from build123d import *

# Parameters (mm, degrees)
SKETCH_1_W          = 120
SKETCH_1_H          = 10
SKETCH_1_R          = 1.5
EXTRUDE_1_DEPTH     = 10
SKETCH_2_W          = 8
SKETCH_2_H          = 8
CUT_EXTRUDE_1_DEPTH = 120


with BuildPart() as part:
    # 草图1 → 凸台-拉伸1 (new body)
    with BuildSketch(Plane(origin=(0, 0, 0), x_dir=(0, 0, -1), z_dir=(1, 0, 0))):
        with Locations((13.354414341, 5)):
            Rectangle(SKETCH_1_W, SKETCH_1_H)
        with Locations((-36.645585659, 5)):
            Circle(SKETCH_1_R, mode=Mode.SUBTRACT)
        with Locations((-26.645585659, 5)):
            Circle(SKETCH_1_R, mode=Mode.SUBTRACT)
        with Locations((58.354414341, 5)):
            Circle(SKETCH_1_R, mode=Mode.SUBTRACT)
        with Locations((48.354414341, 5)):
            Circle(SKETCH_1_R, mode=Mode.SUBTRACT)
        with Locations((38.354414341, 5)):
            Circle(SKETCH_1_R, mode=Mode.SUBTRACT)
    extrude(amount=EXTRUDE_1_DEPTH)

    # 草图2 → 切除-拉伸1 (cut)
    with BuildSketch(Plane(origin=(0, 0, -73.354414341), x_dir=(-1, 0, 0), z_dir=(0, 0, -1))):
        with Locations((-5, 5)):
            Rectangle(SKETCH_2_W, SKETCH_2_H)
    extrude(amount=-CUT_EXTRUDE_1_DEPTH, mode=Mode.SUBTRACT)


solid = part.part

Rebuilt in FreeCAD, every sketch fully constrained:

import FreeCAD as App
import Part
import Sketcher

V = App.Vector
Q = App.Units.Quantity

doc = App.newDocument("Part")
body = doc.addObject("PartDesign::Body", "Body")

# Sketch on YZ plane
sketch1 = doc.addObject("Sketcher::SketchObject", "Sketch")
body.addObject(sketch1)
sketch1.AttachmentSupport = (doc.YZ_Plane, [""])
sketch1.MapMode = "FlatFace"
sketch1.addGeometry([
    Part.LineSegment(V(10, 46.645586, 0), V(0, 46.645586, 0)),  # 0
    Part.LineSegment(V(0, 46.645586, 0), V(0, -73.354414, 0)),  # 1
    Part.LineSegment(V(0, -73.354414, 0), V(10, -73.354414, 0)),  # 2
    Part.LineSegment(V(10, -73.354414, 0), V(10, 46.645586, 0)),  # 3
    Part.Circle(V(5, 36.645586, 0), V(0, 0, 1), 1.5),  # 4
    Part.Circle(V(5, 26.645586, 0), V(0, 0, 1), 1.5),  # 5
    Part.Circle(V(5, -38.354414, 0), V(0, 0, 1), 1.5),  # 6
    Part.Circle(V(5, -48.354414, 0), V(0, 0, 1), 1.5),  # 7
    Part.Circle(V(5, -58.354414, 0), V(0, 0, 1), 1.5),  # 8
], False)
sketch1.addConstraint([
    Sketcher.Constraint("Coincident", 0, 2, 1, 1),
    Sketcher.Constraint("Coincident", 1, 2, 2, 1),
    Sketcher.Constraint("Coincident", 2, 2, 3, 1),
    Sketcher.Constraint("Coincident", 3, 2, 0, 1),
    Sketcher.Constraint("Horizontal", 0),
    Sketcher.Constraint("Vertical", 1),
    Sketcher.Constraint("Horizontal", 2),
    Sketcher.Constraint("Vertical", 3),
    Sketcher.Constraint("Equal", 4, 5),
    Sketcher.Constraint("Equal", 5, 6),
    Sketcher.Constraint("Equal", 6, 7),
    Sketcher.Constraint("Equal", 7, 8),
    Sketcher.Constraint("PointOnObject", 0, 2, -2),
    Sketcher.Constraint("Vertical", 4, 3, 5, 3),
    Sketcher.Constraint("Vertical", 5, 3, 6, 3),
    Sketcher.Constraint("Vertical", 6, 3, 7, 3),
    Sketcher.Constraint("Vertical", 7, 3, 8, 3),
    Sketcher.Constraint("Diameter", 4, Q("3 mm")),
    Sketcher.Constraint("DistanceX", 0, 2, 0, 1, Q("10 mm")),
    Sketcher.Constraint("DistanceY", 1, 2, 1, 1, Q("120 mm")),
    Sketcher.Constraint("DistanceX", -1, 1, 4, 3, Q("5 mm")),
    Sketcher.Constraint("DistanceY", 5, 3, 4, 3, Q("10 mm")),
    Sketcher.Constraint("DistanceY", 6, 3, 5, 3, Q("65 mm")),
    Sketcher.Constraint("DistanceY", 7, 3, 6, 3, Q("10 mm")),
    Sketcher.Constraint("DistanceY", 8, 3, 7, 3, Q("10 mm")),
    Sketcher.Constraint("DistanceY", 4, 3, 0, 2, Q("10 mm")),
    Sketcher.Constraint("DistanceY", -1, 1, 4, 3, Q("36.645586 mm")),
])
pad1 = doc.addObject("PartDesign::Pad", "Pad")
body.addObject(pad1)
pad1.Profile = sketch1
pad1.Length = 10

# Sketch on XY plane
sketch2 = doc.addObject("Sketcher::SketchObject", "Sketch001")
body.addObject(sketch2)
sketch2.AttachmentSupport = (doc.XY_Plane, [""])
sketch2.MapMode = "FlatFace"
sketch2.AttachmentOffset = App.Placement(V(0, 0, -73.354414), App.Rotation())
sketch2.addGeometry([
    Part.LineSegment(V(9, 9, 0), V(9, 1, 0)),
    Part.LineSegment(V(9, 1, 0), V(1, 1, 0)),
    Part.LineSegment(V(1, 1, 0), V(1, 9, 0)),
    Part.LineSegment(V(1, 9, 0), V(9, 9, 0)),
], False)
sketch2.addConstraint([
    Sketcher.Constraint("Coincident", 0, 2, 1, 1),
    Sketcher.Constraint("Coincident", 1, 2, 2, 1),
    Sketcher.Constraint("Coincident", 2, 2, 3, 1),
    Sketcher.Constraint("Coincident", 3, 2, 0, 1),
    Sketcher.Constraint("Vertical", 0),
    Sketcher.Constraint("Horizontal", 1),
    Sketcher.Constraint("Vertical", 2),
    Sketcher.Constraint("Horizontal", 3),
    Sketcher.Constraint("Equal", 3, 0),
    Sketcher.Constraint("DistanceX", 1, 2, 1, 1, Q("8 mm")),
    Sketcher.Constraint("DistanceX", -1, 1, 0, 2, Q("9 mm")),
    Sketcher.Constraint("DistanceY", -1, 1, 0, 2, Q("1 mm")),
])
pocket1 = doc.addObject("PartDesign::Pocket", "Pocket")
body.addObject(pocket1)
pocket1.Profile = sketch2
pocket1.Length = 120
pocket1.Reversed = True

doc.recompute()
